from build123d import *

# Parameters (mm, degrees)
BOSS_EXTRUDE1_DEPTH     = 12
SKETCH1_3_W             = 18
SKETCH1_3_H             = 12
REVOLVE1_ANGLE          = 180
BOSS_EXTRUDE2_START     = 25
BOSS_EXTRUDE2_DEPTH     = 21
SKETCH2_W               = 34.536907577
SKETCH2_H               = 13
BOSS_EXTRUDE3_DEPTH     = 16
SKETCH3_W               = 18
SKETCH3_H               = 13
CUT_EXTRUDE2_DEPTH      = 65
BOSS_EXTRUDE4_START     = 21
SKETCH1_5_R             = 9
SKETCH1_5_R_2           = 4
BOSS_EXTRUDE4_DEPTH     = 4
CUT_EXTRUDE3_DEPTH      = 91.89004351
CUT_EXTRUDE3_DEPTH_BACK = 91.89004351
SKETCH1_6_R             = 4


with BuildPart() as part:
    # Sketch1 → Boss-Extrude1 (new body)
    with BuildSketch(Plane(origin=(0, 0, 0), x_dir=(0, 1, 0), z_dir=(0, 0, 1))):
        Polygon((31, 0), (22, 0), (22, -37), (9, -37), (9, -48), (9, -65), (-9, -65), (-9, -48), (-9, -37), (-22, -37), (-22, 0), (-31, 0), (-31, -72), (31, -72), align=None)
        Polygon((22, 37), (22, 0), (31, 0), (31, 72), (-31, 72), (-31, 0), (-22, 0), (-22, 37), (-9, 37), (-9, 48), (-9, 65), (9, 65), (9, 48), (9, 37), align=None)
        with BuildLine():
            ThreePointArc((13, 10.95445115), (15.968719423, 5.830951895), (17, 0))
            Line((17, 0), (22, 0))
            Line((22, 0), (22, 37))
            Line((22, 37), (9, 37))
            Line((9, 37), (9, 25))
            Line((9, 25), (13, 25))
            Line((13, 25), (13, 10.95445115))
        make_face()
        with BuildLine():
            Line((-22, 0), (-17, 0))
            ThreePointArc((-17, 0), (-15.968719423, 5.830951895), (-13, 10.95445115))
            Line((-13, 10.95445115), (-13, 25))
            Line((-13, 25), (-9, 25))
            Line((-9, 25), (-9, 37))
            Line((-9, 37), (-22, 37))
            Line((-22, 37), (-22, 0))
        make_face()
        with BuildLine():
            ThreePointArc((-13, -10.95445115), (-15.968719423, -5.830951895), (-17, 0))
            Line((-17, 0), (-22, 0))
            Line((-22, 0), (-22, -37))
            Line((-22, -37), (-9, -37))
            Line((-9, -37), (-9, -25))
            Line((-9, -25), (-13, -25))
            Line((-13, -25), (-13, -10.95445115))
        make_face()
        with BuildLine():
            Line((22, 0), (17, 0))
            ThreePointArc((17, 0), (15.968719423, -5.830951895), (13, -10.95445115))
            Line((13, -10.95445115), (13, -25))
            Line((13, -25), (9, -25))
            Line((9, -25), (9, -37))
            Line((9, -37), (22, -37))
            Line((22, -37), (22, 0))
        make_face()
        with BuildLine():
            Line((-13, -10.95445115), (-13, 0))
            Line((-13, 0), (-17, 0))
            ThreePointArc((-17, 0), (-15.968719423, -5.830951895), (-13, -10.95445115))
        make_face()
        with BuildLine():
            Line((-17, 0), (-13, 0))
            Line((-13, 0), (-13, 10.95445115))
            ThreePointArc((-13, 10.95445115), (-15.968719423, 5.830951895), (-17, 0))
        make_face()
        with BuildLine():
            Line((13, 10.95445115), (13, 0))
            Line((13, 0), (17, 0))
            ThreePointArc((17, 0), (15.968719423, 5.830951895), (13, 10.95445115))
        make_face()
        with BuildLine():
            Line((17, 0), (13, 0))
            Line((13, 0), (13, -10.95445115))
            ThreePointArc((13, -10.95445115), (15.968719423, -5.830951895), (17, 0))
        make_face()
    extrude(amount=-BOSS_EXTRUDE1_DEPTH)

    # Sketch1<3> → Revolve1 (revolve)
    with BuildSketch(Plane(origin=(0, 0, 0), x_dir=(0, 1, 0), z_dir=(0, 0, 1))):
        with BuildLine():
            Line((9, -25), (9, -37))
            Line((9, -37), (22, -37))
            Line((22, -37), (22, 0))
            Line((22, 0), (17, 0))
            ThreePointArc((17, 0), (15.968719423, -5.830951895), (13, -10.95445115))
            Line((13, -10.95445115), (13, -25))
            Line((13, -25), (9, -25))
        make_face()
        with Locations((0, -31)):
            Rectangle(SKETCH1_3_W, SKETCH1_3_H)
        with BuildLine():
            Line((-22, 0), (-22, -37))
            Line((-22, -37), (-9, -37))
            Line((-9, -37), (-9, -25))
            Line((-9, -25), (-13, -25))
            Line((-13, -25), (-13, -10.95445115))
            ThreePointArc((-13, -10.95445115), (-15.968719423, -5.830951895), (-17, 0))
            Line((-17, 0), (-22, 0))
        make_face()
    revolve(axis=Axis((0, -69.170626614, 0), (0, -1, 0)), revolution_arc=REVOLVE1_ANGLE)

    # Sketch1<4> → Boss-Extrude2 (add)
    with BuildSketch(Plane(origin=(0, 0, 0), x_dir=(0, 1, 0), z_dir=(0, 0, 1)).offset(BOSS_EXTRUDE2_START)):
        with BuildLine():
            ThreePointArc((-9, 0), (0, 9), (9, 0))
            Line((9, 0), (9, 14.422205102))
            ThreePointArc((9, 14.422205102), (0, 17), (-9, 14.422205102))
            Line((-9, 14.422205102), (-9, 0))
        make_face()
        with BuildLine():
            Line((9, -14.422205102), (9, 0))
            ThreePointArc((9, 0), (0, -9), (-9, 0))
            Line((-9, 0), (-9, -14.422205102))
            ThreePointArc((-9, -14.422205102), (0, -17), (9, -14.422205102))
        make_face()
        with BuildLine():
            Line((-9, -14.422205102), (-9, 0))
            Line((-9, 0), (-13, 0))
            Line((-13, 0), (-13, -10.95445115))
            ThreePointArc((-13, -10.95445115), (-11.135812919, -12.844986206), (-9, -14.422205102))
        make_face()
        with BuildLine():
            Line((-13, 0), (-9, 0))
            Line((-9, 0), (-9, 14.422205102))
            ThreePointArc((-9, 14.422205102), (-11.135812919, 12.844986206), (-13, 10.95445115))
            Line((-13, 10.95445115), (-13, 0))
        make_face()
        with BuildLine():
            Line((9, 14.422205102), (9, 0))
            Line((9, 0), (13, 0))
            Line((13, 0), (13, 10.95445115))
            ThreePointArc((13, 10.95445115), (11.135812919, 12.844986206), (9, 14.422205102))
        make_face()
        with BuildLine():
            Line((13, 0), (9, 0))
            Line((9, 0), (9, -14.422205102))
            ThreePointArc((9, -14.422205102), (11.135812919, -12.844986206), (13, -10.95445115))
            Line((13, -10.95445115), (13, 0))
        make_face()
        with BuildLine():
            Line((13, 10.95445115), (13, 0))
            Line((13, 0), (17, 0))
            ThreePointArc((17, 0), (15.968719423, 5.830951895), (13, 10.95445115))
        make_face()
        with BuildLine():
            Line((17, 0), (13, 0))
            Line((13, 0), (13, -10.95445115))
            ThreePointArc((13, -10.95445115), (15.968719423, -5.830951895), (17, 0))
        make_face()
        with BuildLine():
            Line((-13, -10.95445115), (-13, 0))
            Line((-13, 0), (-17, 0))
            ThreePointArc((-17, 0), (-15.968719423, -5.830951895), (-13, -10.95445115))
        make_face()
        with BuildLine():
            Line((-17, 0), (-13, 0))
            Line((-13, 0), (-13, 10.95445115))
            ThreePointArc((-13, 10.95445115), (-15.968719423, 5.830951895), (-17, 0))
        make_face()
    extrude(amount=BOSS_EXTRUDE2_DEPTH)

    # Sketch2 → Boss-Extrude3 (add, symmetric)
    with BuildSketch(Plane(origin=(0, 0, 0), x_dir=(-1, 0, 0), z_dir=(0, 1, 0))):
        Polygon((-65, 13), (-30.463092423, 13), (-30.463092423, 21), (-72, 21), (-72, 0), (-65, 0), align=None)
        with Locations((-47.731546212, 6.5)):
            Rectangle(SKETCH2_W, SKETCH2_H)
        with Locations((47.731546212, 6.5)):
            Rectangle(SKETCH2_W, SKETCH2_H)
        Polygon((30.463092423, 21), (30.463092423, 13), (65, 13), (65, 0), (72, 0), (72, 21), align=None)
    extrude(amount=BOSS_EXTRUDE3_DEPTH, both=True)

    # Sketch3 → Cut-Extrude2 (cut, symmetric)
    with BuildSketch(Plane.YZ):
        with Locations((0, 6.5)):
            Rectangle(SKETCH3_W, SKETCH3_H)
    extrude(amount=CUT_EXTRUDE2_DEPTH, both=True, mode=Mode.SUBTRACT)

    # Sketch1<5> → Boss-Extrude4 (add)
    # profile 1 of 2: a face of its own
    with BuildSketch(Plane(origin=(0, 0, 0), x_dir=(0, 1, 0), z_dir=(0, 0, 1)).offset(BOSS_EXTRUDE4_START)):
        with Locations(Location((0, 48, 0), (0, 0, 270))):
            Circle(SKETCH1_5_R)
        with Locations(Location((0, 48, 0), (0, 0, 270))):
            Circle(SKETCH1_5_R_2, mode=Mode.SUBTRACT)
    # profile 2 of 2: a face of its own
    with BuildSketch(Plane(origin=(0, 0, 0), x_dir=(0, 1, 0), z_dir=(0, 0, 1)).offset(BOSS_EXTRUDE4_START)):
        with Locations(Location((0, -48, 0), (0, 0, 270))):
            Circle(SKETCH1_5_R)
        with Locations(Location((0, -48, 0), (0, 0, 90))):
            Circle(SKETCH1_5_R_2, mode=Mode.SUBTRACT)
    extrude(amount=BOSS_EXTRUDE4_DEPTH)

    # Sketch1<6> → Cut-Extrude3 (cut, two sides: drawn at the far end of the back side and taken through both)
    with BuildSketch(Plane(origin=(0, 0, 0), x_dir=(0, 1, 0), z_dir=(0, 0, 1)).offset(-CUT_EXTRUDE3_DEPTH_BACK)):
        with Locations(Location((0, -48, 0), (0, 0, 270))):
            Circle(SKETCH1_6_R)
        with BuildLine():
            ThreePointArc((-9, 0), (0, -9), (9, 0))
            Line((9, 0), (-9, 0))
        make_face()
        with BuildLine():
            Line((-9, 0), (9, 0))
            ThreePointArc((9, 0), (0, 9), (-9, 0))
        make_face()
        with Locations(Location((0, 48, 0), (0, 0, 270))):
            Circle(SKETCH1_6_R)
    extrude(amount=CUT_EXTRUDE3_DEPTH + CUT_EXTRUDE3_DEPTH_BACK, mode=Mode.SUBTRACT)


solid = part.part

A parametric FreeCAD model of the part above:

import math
import FreeCAD as App
import Part
import Sketcher

V = App.Vector
Q = App.Units.Quantity


def add_polygon(sketch, points):
    """Adds a closed chain of lines whose ends are joined by coincident constraints."""
    first, n = sketch.GeometryCount, len(points)
    for a, b in zip(points, points[1:] + points[:1]):
        sketch.addGeometry(Part.LineSegment(App.Vector(*a, 0), App.Vector(*b, 0)), False)
    for i in range(n):
        sketch.addConstraint(Sketcher.Constraint("Coincident", first + i, 2, first + (i + 1) % n, 1))

doc = App.newDocument("Part")
body = doc.addObject("PartDesign::Body", "Body")

# Sketch on XY plane
sketch1 = doc.addObject("Sketcher::SketchObject", "Sketch")
body.addObject(sketch1)
sketch1.AttachmentSupport = (doc.XY_Plane, [""])
sketch1.MapMode = "FlatFace"
add_polygon(sketch1, [(72, -31), (72, 31), (-72, 31), (-72, -31)])  # lines 0-3
add_polygon(sketch1, [(25, 13), (25, 9), (65, 9), (65, -9), (25, -9), (25, -13), (-25, -13), (-25, -9), (-65, -9), (-65, 9), (-25, 9), (-25, 13)])  # lines 4-15
sketch1.addConstraint([
    Sketcher.Constraint("Vertical", 0),
    Sketcher.Constraint("Horizontal", 1),
    Sketcher.Constraint("Vertical", 2),
    Sketcher.Constraint("Horizontal", 3),
    Sketcher.Constraint("Vertical", 4),
    Sketcher.Constraint("Horizontal", 5),
    Sketcher.Constraint("Vertical", 6),
    Sketcher.Constraint("Horizontal", 7),
    Sketcher.Constraint("Vertical", 8),
    Sketcher.Constraint("Horizontal", 9),
    Sketcher.Constraint("Vertical", 10),
    Sketcher.Constraint("Horizontal", 11),
    Sketcher.Constraint("Vertical", 12),
    Sketcher.Constraint("Horizontal", 13),
    Sketcher.Constraint("Vertical", 14),
    Sketcher.Constraint("Horizontal", 15),
    Sketcher.Constraint("Symmetric", 0, 2, 2, 2, -1, 1),
    Sketcher.Constraint("Symmetric", 4, 2, 10, 2, -1, 1),
    Sketcher.Constraint("Symmetric", 6, 2, 12, 2, -1, 1),
    Sketcher.Constraint("Symmetric", 8, 2, 14, 2, -1, 1),
    Sketcher.Constraint("Symmetric", 7, 2, 10, 2, -2),
    Sketcher.Constraint("DistanceX", 1, 2, 1, 1, Q("144 mm")),
    Sketcher.Constraint("DistanceX", 5, 1, 5, 2, Q("40 mm")),
    Sketcher.Constraint("DistanceX", 9, 2, 9, 1, Q("50 mm")),
    Sketcher.Constraint("DistanceY", 0, 1, 0, 2, Q("62 mm")),
    Sketcher.Constraint("DistanceY", 4, 2, 4, 1, Q("4 mm")),
    Sketcher.Constraint("DistanceY", 6, 2, 6, 1, Q("18 mm")),
])
pad1 = doc.addObject("PartDesign::Pad", "Pad")
body.addObject(pad1)
pad1.Profile = sketch1
pad1.Length = 12
pad1.Reversed = True

# Sketch on XY plane
sketch2 = doc.addObject("Sketcher::SketchObject", "Sketch001")
body.addObject(sketch2)
sketch2.AttachmentSupport = (doc.XY_Plane, [""])
sketch2.MapMode = "FlatFace"
sketch2.addGeometry([
    Part.LineSegment(V(37, 22, 0), V(0, 22, 0)),  # 0
    Part.LineSegment(V(0, 22, 0), V(0, 17, 0)),  # 1
    Part.ArcOfCircle(Part.Circle(V(0, 0, 0), V(0, 0, 1), 17), math.radians(50), math.radians(90)),  # 2
    Part.LineSegment(V(11, 13, 0), V(25, 13, 0)),  # 3
    Part.LineSegment(V(25, 13, 0), V(25, -13, 0)),  # 4
    Part.LineSegment(V(25, -13, 0), V(11, -13, 0)),  # 5
    Part.ArcOfCircle(Part.Circle(V(0, 0, 0), V(0, 0, 1), 17), math.radians(-90), math.radians(-50)),  # 6
    Part.LineSegment(V(0, -17, 0), V(0, -22, 0)),  # 7
    Part.LineSegment(V(0, -22, 0), V(37, -22, 0)),  # 8
    Part.LineSegment(V(37, -22, 0), V(37, 22, 0)),  # 9
], False)
sketch2.addConstraint([
    Sketcher.Constraint("Coincident", 0, 2, 1, 1),
    Sketcher.Constraint("Coincident", 1, 2, 2, 2),
    Sketcher.Constraint("Coincident", 2, 1, 3, 1),
    Sketcher.Constraint("Coincident", 3, 2, 4, 1),
    Sketcher.Constraint("Coincident", 4, 2, 5, 1),
    Sketcher.Constraint("Coincident", 5, 2, 6, 2),
    Sketcher.Constraint("Coincident", 6, 1, 7, 1),
    Sketcher.Constraint("Coincident", 7, 2, 8, 1),
    Sketcher.Constraint("Coincident", 8, 2, 9, 1),
    Sketcher.Constraint("Coincident", 9, 2, 0, 1),
    Sketcher.Constraint("Horizontal", 0),
    Sketcher.Constraint("Vertical", 1),
    Sketcher.Constraint("Horizontal", 3),
    Sketcher.Constraint("Vertical", 4),
    Sketcher.Constraint("Horizontal", 5),
    Sketcher.Constraint("Vertical", 7),
    Sketcher.Constraint("Horizontal", 8),
    Sketcher.Constraint("Vertical", 9),
    Sketcher.Constraint("Coincident", 2, 3, -1, 1),
    Sketcher.Constraint("Coincident", 6, 3, -1, 1),
    Sketcher.Constraint("Equal", 2, 6),
    Sketcher.Constraint("Symmetric", 0, 2, 7, 2, -1, 1),
    Sketcher.Constraint("PointOnObject", 0, 2, -2),
    Sketcher.Constraint("Vertical", 2, 1, 5, 2),
    Sketcher.Constraint("Radius", 2, Q("17 mm")),
    Sketcher.Constraint("DistanceX", 0, 2, 0, 1, Q("37 mm")),
    Sketcher.Constraint("DistanceY", 1, 2, 1, 1, Q("5 mm")),
    Sketcher.Constraint("DistanceY", 4, 2, 4, 1, Q("26 mm")),
    Sketcher.Constraint("DistanceX", -1, 1, 3, 2, Q("25 mm")),
])
revolution = doc.addObject("PartDesign::Revolution", "Revolution")
body.addObject(revolution)
revolution.Profile = sketch2
revolution.ReferenceAxis = (sketch2, ["V_Axis"])
revolution.Angle = 180
revolution.Reversed = True

# Sketch on XY plane
sketch3 = doc.addObject("Sketcher::SketchObject", "Sketch002")
body.addObject(sketch3)
sketch3.AttachmentSupport = (doc.XY_Plane, [""])
sketch3.MapMode = "FlatFace"
sketch3.AttachmentOffset = App.Placement(V(0, 0, 25), App.Rotation())
sketch3.addGeometry([
    Part.ArcOfCircle(Part.Circle(V(0, 0, 0), V(0, 0, 1), 17), math.radians(-130), math.radians(-90)),  # 0
    Part.ArcOfCircle(Part.Circle(V(0, 0, 0), V(0, 0, 1), 17), math.radians(-90), math.radians(-50)),  # 1
    Part.ArcOfCircle(Part.Circle(V(0, 0, 0), V(0, 0, 1), 17), math.radians(-49.88), math.radians(-31.97)),  # 2
    Part.ArcOfCircle(Part.Circle(V(0, 0, 0), V(0, 0, 1), 17), math.radians(-32), math.radians(32)),  # 3
    Part.ArcOfCircle(Part.Circle(V(0, 0, 0), V(0, 0, 1), 17), math.radians(31.97), math.radians(49.88)),  # 4
    Part.ArcOfCircle(Part.Circle(V(0, 0, 0), V(0, 0, 1), 17), math.radians(50), math.radians(90)),  # 5
    Part.ArcOfCircle(Part.Circle(V(0, 0, 0), V(0, 0, 1), 17), math.radians(90), math.radians(130)),  # 6
    Part.ArcOfCircle(Part.Circle(V(0, 0, 0), V(0, 0, 1), 17), math.radians(130.12), math.radians(148.03)),  # 7
    Part.ArcOfCircle(Part.Circle(V(0, 0, 0), V(0, 0, 1), 17), math.radians(148), math.radians(212)),  # 8
    Part.ArcOfCircle(Part.Circle(V(0, 0, 0), V(0, 0, 1), 17), math.radians(-148.03), math.radians(-130.12)),  # 9
    Part.Circle(V(0, 0, 0), V(0, 0, 1), 9),  # 10
], False)
sketch3.addConstraint([
    Sketcher.Constraint("Tangent", 0, 2, 1, 1),
    Sketcher.Constraint("Tangent", 1, 2, 2, 1),
    Sketcher.Constraint("Tangent", 2, 2, 3, 1),
    Sketcher.Constraint("Tangent", 3, 2, 4, 1),
    Sketcher.Constraint("Tangent", 4, 2, 5, 1),
    Sketcher.Constraint("Tangent", 5, 2, 6, 1),
    Sketcher.Constraint("Tangent", 6, 2, 7, 1),
    Sketcher.Constraint("Tangent", 7, 2, 8, 1),
    Sketcher.Constraint("Tangent", 8, 2, 9, 1),
    Sketcher.Constraint("Tangent", 9, 2, 0, 1),
    Sketcher.Constraint("Coincident", 0, 3, -1, 1),
    Sketcher.Constraint("Coincident", 2, 3, -1, 1),
    Sketcher.Constraint("Coincident", 4, 3, -1, 1),
    Sketcher.Constraint("Coincident", 6, 3, -1, 1),
    Sketcher.Constraint("Coincident", 10, 3, -1, 1),
    Sketcher.Constraint("Equal", 6, 7),
    Sketcher.Constraint("PointOnObject", 0, 2, -2),
    Sketcher.Constraint("PointOnObject", 5, 2, -2),
    Sketcher.Constraint("Horizontal", 4, 2, 6, 2),
    Sketcher.Constraint("Horizontal", 3, 2, 7, 2),
    Sketcher.Constraint("Horizontal", 2, 2, 8, 2),
    Sketcher.Constraint("Horizontal", 1, 2, 9, 2),
    Sketcher.Constraint("Vertical", 2, 2, 3, 2),
    Sketcher.Constraint("Vertical", 1, 2, 4, 2),
    Sketcher.Constraint("Diameter", 10, Q("18 mm")),
    Sketcher.Constraint("Radius", 0, Q("17 mm")),
    Sketcher.Constraint("DistanceY", 1, 2, -1, 1, Q("13 mm")),
    Sketcher.Constraint("DistanceY", 2, 2, -1, 1, Q("9 mm")),
])
pad2 = doc.addObject("PartDesign::Pad", "Pad001")
body.addObject(pad2)
pad2.Profile = sketch3
pad2.Length = 21

# Sketch on XZ plane
sketch4 = doc.addObject("Sketcher::SketchObject", "Sketch003")
body.addObject(sketch4)
sketch4.AttachmentSupport = (doc.XZ_Plane, [""])
sketch4.MapMode = "FlatFace"
add_polygon(sketch4, [(30, 13), (30, 21), (72, 21), (72, 0), (30, 0)])  # lines 0-4
add_polygon(sketch4, [(-30, 13), (-30, 0), (-72, 0), (-72, 21), (-30, 21)])  # lines 5-9
sketch4.addConstraint([
    Sketcher.Constraint("Vertical", 0),
    Sketcher.Constraint("Horizontal", 1),
    Sketcher.Constraint("Vertical", 2),
    Sketcher.Constraint("Horizontal", 3),
    Sketcher.Constraint("Vertical", 4),
    Sketcher.Constraint("Vertical", 5),
    Sketcher.Constraint("Horizontal", 6),
    Sketcher.Constraint("Vertical", 7),
    Sketcher.Constraint("Horizontal", 8),
    Sketcher.Constraint("Vertical", 9),
    Sketcher.Constraint("Symmetric", 3, 2, 5, 2, -1, 1),
    Sketcher.Constraint("Symmetric", 2, 2, 6, 2, -2),
    Sketcher.Constraint("Horizontal", 1, 2, 7, 2),
    Sketcher.Constraint("Horizontal", 4, 2, 9, 2),
    Sketcher.Constraint("DistanceY", 0, 1, 0, 2, Q("8 mm")),
    Sketcher.Constraint("DistanceY", 2, 2, 2, 1, Q("21 mm")),
    Sketcher.Constraint("DistanceX", -1, 1, 1, 2, Q("72 mm")),
    Sketcher.Constraint("DistanceX", 1, 1, 1, 2, Q("41.536908 mm")),
])
pad3 = doc.addObject("PartDesign::Pad", "Pad002")
body.addObject(pad3)
pad3.Profile = sketch4
pad3.Length = 32
pad3.Midplane = True

# Sketch on YZ plane
sketch5 = doc.addObject("Sketcher::SketchObject", "Sketch004")
body.addObject(sketch5)
sketch5.AttachmentSupport = (doc.YZ_Plane, [""])
sketch5.MapMode = "FlatFace"
add_polygon(sketch5, [(-9, 13), (-9, 0), (9, 0), (9, 13)])  # lines 0-3
sketch5.addConstraint([
    Sketcher.Constraint("Vertical", 0),
    Sketcher.Constraint("Horizontal", 1),
    Sketcher.Constraint("Vertical", 2),
    Sketcher.Constraint("Horizontal", 3),
    Sketcher.Constraint("Symmetric", 0, 2, 1, 2, -1, 1),
    Sketcher.Constraint("DistanceX", 1, 1, 1, 2, Q("18 mm")),
    Sketcher.Constraint("DistanceY", 0, 2, 0, 1, Q("13 mm")),
])
pocket1 = doc.addObject("PartDesign::Pocket", "Pocket")
body.addObject(pocket1)
pocket1.Profile = sketch5
pocket1.Length = 130
pocket1.Midplane = True

# Sketch on XY plane
sketch6 = doc.addObject("Sketcher::SketchObject", "Sketch005")
body.addObject(sketch6)
sketch6.AttachmentSupport = (doc.XY_Plane, [""])
sketch6.MapMode = "FlatFace"
sketch6.AttachmentOffset = App.Placement(V(0, 0, 21), App.Rotation())
sketch6.addGeometry([
    Part.Circle(V(-48, 0, 0), V(0, 0, 1), 9),
    Part.Circle(V(-48, 0, 0), V(0, 0, 1), 4),
    Part.Circle(V(48, 0, 0), V(0, 0, 1), 9),
    Part.Circle(V(48, 0, 0), V(0, 0, 1), 4),
], False)
sketch6.addConstraint([
    Sketcher.Constraint("Coincident", 1, 3, 0, 3),
    Sketcher.Constraint("Coincident", 3, 3, 2, 3),
    Sketcher.Constraint("Equal", 0, 2),
    Sketcher.Constraint("Equal", 1, 3),
    Sketcher.Constraint("Symmetric", 0, 3, 2, 3, -1, 1),
    Sketcher.Constraint("PointOnObject", 0, 3, -1),
    Sketcher.Constraint("Diameter", 0, Q("18 mm")),
    Sketcher.Constraint("Diameter", 1, Q("8 mm")),
    Sketcher.Constraint("DistanceX", 0, 3, -1, 1, Q("48 mm")),
])
pad4 = doc.addObject("PartDesign::Pad", "Pad003")
body.addObject(pad4)
pad4.Profile = sketch6
pad4.Length = 4

# Sketch on XY plane
sketch7 = doc.addObject("Sketcher::SketchObject", "Sketch006")
body.addObject(sketch7)
sketch7.AttachmentSupport = (doc.XY_Plane, [""])
sketch7.MapMode = "FlatFace"
sketch7.addGeometry([
    Part.Circle(V(48, 0, 0), V(0, 0, 1), 4),
    Part.Circle(V(0, 0, 0), V(0, 0, 1), 9),
    Part.Circle(V(-48, 0, 0), V(0, 0, 1), 4),
], False)
sketch7.addConstraint([
    Sketcher.Constraint("Coincident", 1, 3, -1, 1),
    Sketcher.Constraint("Equal", 0, 2),
    Sketcher.Constraint("Symmetric", 0, 3, 2, 3, -1, 1),
    Sketcher.Constraint("PointOnObject", 0, 3, -1),
    Sketcher.Constraint("Diameter", 0, Q("8 mm")),
    Sketcher.Constraint("Diameter", 1, Q("18 mm")),
    Sketcher.Constraint("DistanceX", -1, 1, 0, 3, Q("48 mm")),
])
pocket2 = doc.addObject("PartDesign::Pocket", "Pocket001")
body.addObject(pocket2)
pocket2.Profile = sketch7
pocket2.Type = "ThroughAll"
pocket2.Midplane = True

doc.recompute()
